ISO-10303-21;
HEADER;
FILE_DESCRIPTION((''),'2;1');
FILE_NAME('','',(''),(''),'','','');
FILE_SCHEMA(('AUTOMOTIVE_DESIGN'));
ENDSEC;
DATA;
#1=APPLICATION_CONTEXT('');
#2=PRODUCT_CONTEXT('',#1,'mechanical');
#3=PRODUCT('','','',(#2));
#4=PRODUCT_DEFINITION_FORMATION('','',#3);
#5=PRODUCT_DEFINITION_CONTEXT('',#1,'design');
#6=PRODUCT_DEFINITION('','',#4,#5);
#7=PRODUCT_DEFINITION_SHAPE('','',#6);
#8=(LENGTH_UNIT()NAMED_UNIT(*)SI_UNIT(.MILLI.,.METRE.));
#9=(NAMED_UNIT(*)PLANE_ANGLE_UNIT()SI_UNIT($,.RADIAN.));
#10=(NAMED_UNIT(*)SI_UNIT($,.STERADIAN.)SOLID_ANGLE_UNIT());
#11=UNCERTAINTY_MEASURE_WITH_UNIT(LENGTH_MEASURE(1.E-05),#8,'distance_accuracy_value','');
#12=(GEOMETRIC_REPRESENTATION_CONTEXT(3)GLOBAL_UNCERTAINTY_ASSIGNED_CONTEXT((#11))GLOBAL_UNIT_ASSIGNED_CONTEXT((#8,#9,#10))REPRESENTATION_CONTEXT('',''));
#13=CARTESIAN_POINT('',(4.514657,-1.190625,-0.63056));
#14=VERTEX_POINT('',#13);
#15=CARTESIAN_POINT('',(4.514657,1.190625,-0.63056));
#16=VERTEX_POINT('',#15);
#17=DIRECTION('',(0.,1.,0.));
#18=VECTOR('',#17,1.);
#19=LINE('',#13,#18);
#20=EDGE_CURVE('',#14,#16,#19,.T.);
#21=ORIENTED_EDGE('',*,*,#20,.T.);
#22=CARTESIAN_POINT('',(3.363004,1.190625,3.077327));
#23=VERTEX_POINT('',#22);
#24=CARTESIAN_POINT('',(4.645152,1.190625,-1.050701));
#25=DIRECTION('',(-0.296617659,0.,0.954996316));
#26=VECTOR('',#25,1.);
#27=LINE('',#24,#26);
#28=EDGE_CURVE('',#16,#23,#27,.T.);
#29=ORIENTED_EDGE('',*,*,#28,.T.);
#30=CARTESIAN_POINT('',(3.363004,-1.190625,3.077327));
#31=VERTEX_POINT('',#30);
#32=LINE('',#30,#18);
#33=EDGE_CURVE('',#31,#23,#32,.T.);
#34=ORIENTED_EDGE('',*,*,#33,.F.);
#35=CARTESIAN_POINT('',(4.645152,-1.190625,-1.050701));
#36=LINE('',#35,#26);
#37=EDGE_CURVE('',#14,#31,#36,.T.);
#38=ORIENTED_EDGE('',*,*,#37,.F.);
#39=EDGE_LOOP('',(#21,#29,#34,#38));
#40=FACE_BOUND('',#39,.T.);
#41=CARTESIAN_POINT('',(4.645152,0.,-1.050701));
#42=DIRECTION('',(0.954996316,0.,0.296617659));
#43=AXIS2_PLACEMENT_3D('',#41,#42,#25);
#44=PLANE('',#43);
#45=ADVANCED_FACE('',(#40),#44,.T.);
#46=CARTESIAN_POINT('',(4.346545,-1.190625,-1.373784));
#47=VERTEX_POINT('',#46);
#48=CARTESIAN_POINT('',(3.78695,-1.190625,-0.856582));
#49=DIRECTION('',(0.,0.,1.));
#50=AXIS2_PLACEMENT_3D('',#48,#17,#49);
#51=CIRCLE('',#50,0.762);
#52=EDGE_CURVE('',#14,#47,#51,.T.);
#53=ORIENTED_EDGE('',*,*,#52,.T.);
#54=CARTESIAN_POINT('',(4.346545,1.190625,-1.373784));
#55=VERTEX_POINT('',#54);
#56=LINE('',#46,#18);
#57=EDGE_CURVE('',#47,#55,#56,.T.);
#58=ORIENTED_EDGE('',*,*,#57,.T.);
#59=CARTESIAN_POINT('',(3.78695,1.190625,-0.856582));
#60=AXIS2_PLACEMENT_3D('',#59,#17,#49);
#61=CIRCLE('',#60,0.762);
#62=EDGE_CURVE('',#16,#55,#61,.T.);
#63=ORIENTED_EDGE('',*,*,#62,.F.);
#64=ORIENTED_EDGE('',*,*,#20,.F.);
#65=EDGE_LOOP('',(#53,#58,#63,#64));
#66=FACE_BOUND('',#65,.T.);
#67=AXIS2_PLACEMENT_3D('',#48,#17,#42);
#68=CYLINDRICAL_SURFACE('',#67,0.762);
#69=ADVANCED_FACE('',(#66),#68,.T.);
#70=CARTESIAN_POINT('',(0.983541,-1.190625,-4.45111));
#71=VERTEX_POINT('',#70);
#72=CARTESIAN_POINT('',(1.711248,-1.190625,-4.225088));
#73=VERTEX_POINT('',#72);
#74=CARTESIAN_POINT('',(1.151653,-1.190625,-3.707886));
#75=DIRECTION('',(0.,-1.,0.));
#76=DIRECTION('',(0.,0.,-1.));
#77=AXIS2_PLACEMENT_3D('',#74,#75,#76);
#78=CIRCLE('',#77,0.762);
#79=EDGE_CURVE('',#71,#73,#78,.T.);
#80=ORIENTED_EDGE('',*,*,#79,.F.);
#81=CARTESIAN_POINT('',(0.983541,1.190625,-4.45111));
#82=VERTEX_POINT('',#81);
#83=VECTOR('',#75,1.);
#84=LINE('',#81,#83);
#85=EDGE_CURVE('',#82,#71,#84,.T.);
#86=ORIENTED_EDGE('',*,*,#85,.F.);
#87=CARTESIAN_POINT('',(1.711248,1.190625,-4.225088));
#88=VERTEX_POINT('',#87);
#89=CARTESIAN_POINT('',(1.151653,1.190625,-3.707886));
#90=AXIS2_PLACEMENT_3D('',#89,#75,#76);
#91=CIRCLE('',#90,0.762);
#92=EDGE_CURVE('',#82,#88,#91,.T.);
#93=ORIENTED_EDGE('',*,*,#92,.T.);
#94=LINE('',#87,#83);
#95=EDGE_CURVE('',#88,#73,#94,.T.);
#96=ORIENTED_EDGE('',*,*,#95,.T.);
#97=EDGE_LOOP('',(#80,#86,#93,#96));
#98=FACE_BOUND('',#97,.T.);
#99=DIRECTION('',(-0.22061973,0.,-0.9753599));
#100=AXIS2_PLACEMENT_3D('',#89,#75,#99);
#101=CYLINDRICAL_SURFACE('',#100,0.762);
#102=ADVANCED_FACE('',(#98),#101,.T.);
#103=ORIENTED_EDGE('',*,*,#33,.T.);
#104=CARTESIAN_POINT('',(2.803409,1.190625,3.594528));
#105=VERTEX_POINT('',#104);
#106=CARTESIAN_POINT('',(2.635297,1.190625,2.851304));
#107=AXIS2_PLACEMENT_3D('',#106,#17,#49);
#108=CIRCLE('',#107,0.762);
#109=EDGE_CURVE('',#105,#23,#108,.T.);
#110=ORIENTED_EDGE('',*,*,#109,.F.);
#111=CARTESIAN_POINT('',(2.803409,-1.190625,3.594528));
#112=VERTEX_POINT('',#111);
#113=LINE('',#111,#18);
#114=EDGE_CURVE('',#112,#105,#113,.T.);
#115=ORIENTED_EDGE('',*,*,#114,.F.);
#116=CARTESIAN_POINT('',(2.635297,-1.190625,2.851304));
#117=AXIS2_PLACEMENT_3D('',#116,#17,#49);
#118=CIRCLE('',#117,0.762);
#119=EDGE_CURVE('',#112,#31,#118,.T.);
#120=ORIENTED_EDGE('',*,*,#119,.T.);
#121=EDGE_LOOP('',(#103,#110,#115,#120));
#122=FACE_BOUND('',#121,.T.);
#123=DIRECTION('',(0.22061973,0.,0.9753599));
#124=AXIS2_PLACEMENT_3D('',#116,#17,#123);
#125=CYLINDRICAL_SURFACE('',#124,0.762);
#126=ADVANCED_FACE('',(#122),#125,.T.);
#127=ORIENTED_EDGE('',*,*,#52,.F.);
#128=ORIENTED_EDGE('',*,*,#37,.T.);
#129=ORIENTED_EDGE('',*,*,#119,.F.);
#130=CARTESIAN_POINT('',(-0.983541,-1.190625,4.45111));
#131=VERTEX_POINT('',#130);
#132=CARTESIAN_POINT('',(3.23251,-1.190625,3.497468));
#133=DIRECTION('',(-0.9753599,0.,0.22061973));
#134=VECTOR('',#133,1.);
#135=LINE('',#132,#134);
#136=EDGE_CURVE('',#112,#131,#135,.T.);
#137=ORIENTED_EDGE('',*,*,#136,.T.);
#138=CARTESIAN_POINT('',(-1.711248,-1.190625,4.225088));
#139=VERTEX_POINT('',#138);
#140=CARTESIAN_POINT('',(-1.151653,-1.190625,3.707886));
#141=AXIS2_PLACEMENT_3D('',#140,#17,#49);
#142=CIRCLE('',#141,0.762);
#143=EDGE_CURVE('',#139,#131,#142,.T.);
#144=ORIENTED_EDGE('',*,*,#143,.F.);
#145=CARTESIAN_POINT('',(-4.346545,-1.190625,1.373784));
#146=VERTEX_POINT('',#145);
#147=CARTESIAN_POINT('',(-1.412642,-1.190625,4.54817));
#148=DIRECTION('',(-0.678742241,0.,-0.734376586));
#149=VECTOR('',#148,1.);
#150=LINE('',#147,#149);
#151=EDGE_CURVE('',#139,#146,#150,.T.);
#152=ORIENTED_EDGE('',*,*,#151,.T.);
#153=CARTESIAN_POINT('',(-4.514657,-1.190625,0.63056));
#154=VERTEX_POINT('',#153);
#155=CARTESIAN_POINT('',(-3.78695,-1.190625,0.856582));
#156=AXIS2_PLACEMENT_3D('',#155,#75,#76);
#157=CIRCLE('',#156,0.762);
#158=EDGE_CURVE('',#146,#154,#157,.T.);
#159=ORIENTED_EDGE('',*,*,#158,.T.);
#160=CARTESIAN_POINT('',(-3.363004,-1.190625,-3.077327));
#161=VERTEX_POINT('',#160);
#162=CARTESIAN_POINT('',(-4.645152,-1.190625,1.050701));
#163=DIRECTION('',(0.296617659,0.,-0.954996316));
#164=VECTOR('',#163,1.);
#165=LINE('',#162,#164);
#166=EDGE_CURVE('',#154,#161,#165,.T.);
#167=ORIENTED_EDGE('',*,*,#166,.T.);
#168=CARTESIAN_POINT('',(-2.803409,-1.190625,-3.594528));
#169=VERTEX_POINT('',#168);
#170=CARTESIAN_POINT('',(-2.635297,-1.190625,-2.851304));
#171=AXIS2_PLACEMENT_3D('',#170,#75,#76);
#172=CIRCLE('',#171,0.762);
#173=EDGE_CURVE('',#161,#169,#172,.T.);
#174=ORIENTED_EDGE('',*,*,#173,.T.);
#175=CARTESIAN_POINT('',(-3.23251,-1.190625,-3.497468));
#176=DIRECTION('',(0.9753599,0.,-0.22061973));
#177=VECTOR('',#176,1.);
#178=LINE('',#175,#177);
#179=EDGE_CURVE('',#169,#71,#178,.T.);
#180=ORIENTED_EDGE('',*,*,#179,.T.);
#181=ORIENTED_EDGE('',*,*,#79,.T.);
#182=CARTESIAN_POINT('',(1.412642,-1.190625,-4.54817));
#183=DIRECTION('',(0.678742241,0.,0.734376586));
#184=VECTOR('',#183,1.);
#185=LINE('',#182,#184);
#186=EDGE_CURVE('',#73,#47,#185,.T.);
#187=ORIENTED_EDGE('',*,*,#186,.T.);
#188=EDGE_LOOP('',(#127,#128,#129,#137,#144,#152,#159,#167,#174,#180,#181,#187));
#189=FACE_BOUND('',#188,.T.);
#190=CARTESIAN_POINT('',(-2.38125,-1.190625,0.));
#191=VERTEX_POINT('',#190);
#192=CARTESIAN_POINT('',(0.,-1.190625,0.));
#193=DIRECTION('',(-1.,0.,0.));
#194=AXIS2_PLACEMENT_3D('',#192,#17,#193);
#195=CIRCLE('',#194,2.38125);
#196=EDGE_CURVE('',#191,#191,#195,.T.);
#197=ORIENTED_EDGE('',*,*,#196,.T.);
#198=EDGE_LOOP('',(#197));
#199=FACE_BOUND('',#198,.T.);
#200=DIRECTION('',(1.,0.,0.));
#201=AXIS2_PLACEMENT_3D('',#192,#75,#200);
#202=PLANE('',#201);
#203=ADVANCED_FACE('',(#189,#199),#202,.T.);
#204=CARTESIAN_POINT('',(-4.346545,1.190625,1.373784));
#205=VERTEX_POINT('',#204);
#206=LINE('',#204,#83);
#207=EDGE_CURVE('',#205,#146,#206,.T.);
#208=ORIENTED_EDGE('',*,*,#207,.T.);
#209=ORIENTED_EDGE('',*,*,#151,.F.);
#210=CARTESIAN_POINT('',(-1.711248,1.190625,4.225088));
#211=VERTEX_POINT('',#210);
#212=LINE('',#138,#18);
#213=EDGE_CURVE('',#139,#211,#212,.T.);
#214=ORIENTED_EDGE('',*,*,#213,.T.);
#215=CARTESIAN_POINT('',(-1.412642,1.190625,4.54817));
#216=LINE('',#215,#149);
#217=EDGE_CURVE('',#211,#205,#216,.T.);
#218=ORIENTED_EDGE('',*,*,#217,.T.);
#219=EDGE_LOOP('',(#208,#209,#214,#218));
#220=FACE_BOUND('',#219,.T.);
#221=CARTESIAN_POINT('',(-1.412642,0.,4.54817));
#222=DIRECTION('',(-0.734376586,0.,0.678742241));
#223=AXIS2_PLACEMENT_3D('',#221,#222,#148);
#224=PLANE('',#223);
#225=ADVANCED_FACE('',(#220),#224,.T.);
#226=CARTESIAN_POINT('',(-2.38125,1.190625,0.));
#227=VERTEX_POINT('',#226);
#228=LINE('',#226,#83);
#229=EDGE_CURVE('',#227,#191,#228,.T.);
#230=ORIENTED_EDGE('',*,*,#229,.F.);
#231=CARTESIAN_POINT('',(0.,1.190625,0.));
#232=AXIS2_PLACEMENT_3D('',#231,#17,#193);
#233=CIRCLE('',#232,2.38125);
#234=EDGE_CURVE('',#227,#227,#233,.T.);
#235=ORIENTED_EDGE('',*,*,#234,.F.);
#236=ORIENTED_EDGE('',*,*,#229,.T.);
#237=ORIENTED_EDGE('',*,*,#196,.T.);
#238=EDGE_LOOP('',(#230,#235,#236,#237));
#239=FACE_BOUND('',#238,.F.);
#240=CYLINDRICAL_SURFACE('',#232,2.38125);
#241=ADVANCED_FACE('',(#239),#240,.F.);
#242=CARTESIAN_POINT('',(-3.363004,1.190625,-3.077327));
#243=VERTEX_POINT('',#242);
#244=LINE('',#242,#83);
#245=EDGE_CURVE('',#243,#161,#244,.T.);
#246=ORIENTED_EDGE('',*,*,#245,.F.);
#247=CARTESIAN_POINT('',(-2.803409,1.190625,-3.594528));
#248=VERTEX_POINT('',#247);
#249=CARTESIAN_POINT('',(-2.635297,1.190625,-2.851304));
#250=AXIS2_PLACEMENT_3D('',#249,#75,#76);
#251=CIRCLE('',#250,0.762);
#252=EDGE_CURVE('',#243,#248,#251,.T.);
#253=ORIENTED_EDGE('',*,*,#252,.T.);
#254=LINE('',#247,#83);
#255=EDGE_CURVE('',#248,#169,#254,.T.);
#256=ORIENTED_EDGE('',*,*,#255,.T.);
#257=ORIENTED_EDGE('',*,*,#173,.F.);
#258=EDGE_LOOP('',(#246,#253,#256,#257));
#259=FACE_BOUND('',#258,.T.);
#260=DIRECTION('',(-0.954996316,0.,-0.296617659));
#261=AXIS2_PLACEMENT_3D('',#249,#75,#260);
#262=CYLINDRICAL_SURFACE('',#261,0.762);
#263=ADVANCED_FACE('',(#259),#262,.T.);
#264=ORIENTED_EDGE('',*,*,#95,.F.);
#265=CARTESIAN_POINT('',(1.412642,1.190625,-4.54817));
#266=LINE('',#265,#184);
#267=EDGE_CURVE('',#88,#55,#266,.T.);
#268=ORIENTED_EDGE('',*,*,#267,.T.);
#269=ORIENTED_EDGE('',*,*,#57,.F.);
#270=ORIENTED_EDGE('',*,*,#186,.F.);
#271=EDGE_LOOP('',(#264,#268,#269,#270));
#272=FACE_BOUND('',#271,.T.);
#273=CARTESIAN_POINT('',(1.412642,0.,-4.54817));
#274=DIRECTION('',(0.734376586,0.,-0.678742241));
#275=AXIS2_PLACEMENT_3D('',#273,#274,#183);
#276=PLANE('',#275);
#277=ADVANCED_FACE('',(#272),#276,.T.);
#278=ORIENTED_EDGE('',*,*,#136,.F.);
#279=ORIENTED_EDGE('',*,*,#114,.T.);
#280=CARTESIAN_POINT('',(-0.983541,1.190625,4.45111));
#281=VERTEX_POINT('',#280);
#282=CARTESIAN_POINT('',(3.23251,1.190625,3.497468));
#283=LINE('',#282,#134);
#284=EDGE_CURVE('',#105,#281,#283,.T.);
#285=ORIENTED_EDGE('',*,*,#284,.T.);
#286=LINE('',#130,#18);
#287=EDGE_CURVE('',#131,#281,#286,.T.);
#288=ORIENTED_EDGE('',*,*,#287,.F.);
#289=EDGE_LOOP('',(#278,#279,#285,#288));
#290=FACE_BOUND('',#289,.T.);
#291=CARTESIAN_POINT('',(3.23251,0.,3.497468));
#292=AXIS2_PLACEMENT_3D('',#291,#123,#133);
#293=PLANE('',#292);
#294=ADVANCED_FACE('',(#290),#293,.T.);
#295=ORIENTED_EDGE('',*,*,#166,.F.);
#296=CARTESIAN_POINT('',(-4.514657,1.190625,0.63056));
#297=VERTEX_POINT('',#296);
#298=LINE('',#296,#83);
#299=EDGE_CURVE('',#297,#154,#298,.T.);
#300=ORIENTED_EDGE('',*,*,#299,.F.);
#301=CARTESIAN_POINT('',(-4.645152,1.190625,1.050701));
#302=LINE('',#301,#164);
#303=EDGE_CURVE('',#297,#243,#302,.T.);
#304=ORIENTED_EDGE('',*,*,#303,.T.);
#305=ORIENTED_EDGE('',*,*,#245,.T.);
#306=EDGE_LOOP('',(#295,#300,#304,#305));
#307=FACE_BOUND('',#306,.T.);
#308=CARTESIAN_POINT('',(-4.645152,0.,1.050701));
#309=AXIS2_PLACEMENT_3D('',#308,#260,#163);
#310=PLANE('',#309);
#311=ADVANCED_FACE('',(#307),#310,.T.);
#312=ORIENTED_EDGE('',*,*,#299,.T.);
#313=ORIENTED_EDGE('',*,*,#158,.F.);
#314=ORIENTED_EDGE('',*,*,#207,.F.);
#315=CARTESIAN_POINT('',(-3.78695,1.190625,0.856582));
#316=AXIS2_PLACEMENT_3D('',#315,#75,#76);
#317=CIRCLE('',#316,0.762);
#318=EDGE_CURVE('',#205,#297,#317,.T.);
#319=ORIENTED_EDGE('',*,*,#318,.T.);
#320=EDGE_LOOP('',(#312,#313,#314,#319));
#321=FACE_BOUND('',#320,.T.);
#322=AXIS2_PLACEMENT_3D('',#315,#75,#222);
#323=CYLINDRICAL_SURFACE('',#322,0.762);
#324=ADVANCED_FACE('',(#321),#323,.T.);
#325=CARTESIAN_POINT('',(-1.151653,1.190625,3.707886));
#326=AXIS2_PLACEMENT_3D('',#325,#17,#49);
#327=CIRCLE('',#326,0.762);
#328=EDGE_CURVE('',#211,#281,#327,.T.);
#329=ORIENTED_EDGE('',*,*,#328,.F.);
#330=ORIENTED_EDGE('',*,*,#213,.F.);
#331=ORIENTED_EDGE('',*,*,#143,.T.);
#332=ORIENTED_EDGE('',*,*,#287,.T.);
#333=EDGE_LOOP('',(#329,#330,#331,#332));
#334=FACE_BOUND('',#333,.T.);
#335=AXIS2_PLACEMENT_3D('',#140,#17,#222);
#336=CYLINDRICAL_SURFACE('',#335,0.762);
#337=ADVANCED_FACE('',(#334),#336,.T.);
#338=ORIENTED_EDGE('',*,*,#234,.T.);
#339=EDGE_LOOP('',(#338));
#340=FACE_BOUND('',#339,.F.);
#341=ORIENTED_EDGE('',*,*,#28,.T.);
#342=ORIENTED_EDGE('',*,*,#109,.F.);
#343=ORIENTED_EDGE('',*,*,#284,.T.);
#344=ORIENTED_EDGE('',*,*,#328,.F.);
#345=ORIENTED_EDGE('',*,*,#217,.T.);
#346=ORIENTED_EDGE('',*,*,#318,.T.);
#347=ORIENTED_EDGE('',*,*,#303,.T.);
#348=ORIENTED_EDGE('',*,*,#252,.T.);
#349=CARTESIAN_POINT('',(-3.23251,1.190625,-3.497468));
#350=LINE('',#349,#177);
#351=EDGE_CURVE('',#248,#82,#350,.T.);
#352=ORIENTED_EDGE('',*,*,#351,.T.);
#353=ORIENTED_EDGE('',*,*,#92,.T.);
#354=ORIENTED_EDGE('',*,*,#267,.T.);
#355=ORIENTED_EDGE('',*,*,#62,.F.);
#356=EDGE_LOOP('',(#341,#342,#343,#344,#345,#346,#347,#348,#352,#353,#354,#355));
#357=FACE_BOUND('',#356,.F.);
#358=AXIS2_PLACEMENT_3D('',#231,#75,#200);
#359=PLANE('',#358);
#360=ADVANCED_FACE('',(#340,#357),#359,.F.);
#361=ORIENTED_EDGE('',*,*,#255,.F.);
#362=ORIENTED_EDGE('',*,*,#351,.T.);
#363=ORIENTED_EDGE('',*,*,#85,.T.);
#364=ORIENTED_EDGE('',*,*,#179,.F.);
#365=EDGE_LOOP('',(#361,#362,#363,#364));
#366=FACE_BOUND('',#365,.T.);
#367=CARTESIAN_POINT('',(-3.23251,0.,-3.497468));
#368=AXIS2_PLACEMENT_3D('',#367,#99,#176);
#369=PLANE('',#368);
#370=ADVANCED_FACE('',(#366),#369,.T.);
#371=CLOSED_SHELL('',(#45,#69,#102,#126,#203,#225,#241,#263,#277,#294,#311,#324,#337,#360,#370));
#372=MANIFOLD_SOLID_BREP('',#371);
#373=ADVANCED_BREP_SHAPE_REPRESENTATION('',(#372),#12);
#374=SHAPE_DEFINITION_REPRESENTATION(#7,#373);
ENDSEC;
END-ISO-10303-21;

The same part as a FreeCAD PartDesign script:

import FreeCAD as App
import Part
import Sketcher

V = App.Vector
Q = App.Units.Quantity


def edges_at(feature, points):
    """Names of the edges that pass closest to the given points."""
    edges = feature.Shape.Edges
    near = lambda p: min(range(len(edges)), key=lambda i: edges[i].distToShape(Part.Vertex(*p))[0])
    return sorted({f"Edge{near(p) + 1}" for p in points})

doc = App.newDocument("Part")
params = doc.addObject("Spreadsheet::Sheet", "Params")
for row, (alias, value) in enumerate([
    ("sketch1_length", "0.1875 in"),
    ("pad1_length", "0.09375 in"),
    ("sketch2_diameter", "0.1875 in"),
    ("pocket1_length", "0.09375 in"),
    ("fillet_radius", "0.03 in"),
], start=1):
    params.set(f"A{row}", alias)
    params.set(f"B{row}", "=" + value)
    params.setAlias(f"B{row}", alias)

body = doc.addObject("PartDesign::Body", "Body")

# Sketch on XZ plane
sketch1 = body.newObject("Sketcher::SketchObject", "Sketch")
sketch1.AttachmentSupport = (doc.getObject("XZ_Plane"), [""])
sketch1.MapMode = "FlatFace"
sketch1.addGeometry(Part.LineSegment(V(-1.412642, 4.54817, 0), V(-4.645152, 1.050701, 0)), False)
sketch1.addGeometry(Part.LineSegment(V(-4.645152, 1.050701, 0), V(-3.23251, -3.497468, 0)), False)
sketch1.addGeometry(Part.LineSegment(V(-3.23251, -3.497468, 0), V(1.412642, -4.54817, 0)), False)
sketch1.addGeometry(Part.LineSegment(V(1.412642, -4.54817, 0), V(4.645152, -1.050701, 0)), False)
sketch1.addGeometry(Part.LineSegment(V(4.645152, -1.050701, 0), V(3.23251, 3.497468, 0)), False)
sketch1.addGeometry(Part.LineSegment(V(3.23251, 3.497468, 0), V(-1.412642, 4.54817, 0)), False)
sketch1.addConstraint(Sketcher.Constraint("Coincident", 0, 2, 1, 1))
sketch1.addConstraint(Sketcher.Constraint("Coincident", 1, 2, 2, 1))
sketch1.addConstraint(Sketcher.Constraint("Coincident", 2, 2, 3, 1))
sketch1.addConstraint(Sketcher.Constraint("Coincident", 3, 2, 4, 1))
sketch1.addConstraint(Sketcher.Constraint("Coincident", 4, 2, 5, 1))
sketch1.addConstraint(Sketcher.Constraint("Coincident", 5, 2, 0, 1))
sketch1.addConstraint(Sketcher.Constraint("Symmetric", 0, 2, 3, 2, -1, 1))
sketch1.addConstraint(Sketcher.Constraint("Symmetric", 1, 2, 4, 2, -1, 1))
sketch1.addConstraint(Sketcher.Constraint("Symmetric", 2, 2, 5, 2, -1, 1))
sketch1.addConstraint(Sketcher.Constraint("Equal", 0, 1))
sketch1.addConstraint(Sketcher.Constraint("Equal", 1, 2))
sketch1.addConstraint(Sketcher.Constraint("Distance", 0, Q("0.1875 in")))
sketch1.addConstraint(Sketcher.Constraint("DistanceY", -1, 1, 0, 2, 1.050701))
sketch1.addConstraint(Sketcher.Constraint("DistanceY", 2, 2, 1, 2, 1.050701))
sketch1.addConstraint(Sketcher.Constraint("DistanceX", 0, 2, -1, 1, 4.645152))
sketch1.setExpression("Constraints[11]", "Params.sketch1_length")
pad1 = body.newObject("PartDesign::Pad", "Pad")
pad1.Profile = sketch1
pad1.setExpression("Length", "Params.pad1_length")
pad1.Midplane = True

# Sketch on XZ plane
sketch2 = body.newObject("Sketcher::SketchObject", "Sketch001")
sketch2.AttachmentSupport = (doc.getObject("XZ_Plane"), [""])
sketch2.MapMode = "FlatFace"
sketch2.AttachmentOffset = App.Placement(V(0, 0, -0.046875 * 25.4), App.Rotation())
sketch2.addGeometry(Part.Circle(V(0, 0, 0), V(0, 0, 1), 2.38125), False)
sketch2.addConstraint(Sketcher.Constraint("Coincident", 0, 3, -1, 1))
sketch2.addConstraint(Sketcher.Constraint("Diameter", 0, Q("0.1875 in")))
sketch2.setExpression("Constraints[1]", "Params.sketch2_diameter")
pocket1 = body.newObject("PartDesign::Pocket", "Pocket")
pocket1.Profile = sketch2
pocket1.setExpression("Length", "Params.pocket1_length")
pocket1.Reversed = True
doc.recompute()

fillet = body.newObject("PartDesign::Fillet", "Fillet")
fillet.Base = (pocket1, edges_at(pocket1, [
    (-1.413, 0, 4.548),
    (3.233, 0, 3.497),
    (4.645, 0, -1.051),
    (1.413, 0, -4.548),
    (-3.233, 0, -3.497),
    (-4.645, 0, 1.051),
]))
fillet.setExpression("Radius", "Params.fillet_radius")

doc.recompute()
